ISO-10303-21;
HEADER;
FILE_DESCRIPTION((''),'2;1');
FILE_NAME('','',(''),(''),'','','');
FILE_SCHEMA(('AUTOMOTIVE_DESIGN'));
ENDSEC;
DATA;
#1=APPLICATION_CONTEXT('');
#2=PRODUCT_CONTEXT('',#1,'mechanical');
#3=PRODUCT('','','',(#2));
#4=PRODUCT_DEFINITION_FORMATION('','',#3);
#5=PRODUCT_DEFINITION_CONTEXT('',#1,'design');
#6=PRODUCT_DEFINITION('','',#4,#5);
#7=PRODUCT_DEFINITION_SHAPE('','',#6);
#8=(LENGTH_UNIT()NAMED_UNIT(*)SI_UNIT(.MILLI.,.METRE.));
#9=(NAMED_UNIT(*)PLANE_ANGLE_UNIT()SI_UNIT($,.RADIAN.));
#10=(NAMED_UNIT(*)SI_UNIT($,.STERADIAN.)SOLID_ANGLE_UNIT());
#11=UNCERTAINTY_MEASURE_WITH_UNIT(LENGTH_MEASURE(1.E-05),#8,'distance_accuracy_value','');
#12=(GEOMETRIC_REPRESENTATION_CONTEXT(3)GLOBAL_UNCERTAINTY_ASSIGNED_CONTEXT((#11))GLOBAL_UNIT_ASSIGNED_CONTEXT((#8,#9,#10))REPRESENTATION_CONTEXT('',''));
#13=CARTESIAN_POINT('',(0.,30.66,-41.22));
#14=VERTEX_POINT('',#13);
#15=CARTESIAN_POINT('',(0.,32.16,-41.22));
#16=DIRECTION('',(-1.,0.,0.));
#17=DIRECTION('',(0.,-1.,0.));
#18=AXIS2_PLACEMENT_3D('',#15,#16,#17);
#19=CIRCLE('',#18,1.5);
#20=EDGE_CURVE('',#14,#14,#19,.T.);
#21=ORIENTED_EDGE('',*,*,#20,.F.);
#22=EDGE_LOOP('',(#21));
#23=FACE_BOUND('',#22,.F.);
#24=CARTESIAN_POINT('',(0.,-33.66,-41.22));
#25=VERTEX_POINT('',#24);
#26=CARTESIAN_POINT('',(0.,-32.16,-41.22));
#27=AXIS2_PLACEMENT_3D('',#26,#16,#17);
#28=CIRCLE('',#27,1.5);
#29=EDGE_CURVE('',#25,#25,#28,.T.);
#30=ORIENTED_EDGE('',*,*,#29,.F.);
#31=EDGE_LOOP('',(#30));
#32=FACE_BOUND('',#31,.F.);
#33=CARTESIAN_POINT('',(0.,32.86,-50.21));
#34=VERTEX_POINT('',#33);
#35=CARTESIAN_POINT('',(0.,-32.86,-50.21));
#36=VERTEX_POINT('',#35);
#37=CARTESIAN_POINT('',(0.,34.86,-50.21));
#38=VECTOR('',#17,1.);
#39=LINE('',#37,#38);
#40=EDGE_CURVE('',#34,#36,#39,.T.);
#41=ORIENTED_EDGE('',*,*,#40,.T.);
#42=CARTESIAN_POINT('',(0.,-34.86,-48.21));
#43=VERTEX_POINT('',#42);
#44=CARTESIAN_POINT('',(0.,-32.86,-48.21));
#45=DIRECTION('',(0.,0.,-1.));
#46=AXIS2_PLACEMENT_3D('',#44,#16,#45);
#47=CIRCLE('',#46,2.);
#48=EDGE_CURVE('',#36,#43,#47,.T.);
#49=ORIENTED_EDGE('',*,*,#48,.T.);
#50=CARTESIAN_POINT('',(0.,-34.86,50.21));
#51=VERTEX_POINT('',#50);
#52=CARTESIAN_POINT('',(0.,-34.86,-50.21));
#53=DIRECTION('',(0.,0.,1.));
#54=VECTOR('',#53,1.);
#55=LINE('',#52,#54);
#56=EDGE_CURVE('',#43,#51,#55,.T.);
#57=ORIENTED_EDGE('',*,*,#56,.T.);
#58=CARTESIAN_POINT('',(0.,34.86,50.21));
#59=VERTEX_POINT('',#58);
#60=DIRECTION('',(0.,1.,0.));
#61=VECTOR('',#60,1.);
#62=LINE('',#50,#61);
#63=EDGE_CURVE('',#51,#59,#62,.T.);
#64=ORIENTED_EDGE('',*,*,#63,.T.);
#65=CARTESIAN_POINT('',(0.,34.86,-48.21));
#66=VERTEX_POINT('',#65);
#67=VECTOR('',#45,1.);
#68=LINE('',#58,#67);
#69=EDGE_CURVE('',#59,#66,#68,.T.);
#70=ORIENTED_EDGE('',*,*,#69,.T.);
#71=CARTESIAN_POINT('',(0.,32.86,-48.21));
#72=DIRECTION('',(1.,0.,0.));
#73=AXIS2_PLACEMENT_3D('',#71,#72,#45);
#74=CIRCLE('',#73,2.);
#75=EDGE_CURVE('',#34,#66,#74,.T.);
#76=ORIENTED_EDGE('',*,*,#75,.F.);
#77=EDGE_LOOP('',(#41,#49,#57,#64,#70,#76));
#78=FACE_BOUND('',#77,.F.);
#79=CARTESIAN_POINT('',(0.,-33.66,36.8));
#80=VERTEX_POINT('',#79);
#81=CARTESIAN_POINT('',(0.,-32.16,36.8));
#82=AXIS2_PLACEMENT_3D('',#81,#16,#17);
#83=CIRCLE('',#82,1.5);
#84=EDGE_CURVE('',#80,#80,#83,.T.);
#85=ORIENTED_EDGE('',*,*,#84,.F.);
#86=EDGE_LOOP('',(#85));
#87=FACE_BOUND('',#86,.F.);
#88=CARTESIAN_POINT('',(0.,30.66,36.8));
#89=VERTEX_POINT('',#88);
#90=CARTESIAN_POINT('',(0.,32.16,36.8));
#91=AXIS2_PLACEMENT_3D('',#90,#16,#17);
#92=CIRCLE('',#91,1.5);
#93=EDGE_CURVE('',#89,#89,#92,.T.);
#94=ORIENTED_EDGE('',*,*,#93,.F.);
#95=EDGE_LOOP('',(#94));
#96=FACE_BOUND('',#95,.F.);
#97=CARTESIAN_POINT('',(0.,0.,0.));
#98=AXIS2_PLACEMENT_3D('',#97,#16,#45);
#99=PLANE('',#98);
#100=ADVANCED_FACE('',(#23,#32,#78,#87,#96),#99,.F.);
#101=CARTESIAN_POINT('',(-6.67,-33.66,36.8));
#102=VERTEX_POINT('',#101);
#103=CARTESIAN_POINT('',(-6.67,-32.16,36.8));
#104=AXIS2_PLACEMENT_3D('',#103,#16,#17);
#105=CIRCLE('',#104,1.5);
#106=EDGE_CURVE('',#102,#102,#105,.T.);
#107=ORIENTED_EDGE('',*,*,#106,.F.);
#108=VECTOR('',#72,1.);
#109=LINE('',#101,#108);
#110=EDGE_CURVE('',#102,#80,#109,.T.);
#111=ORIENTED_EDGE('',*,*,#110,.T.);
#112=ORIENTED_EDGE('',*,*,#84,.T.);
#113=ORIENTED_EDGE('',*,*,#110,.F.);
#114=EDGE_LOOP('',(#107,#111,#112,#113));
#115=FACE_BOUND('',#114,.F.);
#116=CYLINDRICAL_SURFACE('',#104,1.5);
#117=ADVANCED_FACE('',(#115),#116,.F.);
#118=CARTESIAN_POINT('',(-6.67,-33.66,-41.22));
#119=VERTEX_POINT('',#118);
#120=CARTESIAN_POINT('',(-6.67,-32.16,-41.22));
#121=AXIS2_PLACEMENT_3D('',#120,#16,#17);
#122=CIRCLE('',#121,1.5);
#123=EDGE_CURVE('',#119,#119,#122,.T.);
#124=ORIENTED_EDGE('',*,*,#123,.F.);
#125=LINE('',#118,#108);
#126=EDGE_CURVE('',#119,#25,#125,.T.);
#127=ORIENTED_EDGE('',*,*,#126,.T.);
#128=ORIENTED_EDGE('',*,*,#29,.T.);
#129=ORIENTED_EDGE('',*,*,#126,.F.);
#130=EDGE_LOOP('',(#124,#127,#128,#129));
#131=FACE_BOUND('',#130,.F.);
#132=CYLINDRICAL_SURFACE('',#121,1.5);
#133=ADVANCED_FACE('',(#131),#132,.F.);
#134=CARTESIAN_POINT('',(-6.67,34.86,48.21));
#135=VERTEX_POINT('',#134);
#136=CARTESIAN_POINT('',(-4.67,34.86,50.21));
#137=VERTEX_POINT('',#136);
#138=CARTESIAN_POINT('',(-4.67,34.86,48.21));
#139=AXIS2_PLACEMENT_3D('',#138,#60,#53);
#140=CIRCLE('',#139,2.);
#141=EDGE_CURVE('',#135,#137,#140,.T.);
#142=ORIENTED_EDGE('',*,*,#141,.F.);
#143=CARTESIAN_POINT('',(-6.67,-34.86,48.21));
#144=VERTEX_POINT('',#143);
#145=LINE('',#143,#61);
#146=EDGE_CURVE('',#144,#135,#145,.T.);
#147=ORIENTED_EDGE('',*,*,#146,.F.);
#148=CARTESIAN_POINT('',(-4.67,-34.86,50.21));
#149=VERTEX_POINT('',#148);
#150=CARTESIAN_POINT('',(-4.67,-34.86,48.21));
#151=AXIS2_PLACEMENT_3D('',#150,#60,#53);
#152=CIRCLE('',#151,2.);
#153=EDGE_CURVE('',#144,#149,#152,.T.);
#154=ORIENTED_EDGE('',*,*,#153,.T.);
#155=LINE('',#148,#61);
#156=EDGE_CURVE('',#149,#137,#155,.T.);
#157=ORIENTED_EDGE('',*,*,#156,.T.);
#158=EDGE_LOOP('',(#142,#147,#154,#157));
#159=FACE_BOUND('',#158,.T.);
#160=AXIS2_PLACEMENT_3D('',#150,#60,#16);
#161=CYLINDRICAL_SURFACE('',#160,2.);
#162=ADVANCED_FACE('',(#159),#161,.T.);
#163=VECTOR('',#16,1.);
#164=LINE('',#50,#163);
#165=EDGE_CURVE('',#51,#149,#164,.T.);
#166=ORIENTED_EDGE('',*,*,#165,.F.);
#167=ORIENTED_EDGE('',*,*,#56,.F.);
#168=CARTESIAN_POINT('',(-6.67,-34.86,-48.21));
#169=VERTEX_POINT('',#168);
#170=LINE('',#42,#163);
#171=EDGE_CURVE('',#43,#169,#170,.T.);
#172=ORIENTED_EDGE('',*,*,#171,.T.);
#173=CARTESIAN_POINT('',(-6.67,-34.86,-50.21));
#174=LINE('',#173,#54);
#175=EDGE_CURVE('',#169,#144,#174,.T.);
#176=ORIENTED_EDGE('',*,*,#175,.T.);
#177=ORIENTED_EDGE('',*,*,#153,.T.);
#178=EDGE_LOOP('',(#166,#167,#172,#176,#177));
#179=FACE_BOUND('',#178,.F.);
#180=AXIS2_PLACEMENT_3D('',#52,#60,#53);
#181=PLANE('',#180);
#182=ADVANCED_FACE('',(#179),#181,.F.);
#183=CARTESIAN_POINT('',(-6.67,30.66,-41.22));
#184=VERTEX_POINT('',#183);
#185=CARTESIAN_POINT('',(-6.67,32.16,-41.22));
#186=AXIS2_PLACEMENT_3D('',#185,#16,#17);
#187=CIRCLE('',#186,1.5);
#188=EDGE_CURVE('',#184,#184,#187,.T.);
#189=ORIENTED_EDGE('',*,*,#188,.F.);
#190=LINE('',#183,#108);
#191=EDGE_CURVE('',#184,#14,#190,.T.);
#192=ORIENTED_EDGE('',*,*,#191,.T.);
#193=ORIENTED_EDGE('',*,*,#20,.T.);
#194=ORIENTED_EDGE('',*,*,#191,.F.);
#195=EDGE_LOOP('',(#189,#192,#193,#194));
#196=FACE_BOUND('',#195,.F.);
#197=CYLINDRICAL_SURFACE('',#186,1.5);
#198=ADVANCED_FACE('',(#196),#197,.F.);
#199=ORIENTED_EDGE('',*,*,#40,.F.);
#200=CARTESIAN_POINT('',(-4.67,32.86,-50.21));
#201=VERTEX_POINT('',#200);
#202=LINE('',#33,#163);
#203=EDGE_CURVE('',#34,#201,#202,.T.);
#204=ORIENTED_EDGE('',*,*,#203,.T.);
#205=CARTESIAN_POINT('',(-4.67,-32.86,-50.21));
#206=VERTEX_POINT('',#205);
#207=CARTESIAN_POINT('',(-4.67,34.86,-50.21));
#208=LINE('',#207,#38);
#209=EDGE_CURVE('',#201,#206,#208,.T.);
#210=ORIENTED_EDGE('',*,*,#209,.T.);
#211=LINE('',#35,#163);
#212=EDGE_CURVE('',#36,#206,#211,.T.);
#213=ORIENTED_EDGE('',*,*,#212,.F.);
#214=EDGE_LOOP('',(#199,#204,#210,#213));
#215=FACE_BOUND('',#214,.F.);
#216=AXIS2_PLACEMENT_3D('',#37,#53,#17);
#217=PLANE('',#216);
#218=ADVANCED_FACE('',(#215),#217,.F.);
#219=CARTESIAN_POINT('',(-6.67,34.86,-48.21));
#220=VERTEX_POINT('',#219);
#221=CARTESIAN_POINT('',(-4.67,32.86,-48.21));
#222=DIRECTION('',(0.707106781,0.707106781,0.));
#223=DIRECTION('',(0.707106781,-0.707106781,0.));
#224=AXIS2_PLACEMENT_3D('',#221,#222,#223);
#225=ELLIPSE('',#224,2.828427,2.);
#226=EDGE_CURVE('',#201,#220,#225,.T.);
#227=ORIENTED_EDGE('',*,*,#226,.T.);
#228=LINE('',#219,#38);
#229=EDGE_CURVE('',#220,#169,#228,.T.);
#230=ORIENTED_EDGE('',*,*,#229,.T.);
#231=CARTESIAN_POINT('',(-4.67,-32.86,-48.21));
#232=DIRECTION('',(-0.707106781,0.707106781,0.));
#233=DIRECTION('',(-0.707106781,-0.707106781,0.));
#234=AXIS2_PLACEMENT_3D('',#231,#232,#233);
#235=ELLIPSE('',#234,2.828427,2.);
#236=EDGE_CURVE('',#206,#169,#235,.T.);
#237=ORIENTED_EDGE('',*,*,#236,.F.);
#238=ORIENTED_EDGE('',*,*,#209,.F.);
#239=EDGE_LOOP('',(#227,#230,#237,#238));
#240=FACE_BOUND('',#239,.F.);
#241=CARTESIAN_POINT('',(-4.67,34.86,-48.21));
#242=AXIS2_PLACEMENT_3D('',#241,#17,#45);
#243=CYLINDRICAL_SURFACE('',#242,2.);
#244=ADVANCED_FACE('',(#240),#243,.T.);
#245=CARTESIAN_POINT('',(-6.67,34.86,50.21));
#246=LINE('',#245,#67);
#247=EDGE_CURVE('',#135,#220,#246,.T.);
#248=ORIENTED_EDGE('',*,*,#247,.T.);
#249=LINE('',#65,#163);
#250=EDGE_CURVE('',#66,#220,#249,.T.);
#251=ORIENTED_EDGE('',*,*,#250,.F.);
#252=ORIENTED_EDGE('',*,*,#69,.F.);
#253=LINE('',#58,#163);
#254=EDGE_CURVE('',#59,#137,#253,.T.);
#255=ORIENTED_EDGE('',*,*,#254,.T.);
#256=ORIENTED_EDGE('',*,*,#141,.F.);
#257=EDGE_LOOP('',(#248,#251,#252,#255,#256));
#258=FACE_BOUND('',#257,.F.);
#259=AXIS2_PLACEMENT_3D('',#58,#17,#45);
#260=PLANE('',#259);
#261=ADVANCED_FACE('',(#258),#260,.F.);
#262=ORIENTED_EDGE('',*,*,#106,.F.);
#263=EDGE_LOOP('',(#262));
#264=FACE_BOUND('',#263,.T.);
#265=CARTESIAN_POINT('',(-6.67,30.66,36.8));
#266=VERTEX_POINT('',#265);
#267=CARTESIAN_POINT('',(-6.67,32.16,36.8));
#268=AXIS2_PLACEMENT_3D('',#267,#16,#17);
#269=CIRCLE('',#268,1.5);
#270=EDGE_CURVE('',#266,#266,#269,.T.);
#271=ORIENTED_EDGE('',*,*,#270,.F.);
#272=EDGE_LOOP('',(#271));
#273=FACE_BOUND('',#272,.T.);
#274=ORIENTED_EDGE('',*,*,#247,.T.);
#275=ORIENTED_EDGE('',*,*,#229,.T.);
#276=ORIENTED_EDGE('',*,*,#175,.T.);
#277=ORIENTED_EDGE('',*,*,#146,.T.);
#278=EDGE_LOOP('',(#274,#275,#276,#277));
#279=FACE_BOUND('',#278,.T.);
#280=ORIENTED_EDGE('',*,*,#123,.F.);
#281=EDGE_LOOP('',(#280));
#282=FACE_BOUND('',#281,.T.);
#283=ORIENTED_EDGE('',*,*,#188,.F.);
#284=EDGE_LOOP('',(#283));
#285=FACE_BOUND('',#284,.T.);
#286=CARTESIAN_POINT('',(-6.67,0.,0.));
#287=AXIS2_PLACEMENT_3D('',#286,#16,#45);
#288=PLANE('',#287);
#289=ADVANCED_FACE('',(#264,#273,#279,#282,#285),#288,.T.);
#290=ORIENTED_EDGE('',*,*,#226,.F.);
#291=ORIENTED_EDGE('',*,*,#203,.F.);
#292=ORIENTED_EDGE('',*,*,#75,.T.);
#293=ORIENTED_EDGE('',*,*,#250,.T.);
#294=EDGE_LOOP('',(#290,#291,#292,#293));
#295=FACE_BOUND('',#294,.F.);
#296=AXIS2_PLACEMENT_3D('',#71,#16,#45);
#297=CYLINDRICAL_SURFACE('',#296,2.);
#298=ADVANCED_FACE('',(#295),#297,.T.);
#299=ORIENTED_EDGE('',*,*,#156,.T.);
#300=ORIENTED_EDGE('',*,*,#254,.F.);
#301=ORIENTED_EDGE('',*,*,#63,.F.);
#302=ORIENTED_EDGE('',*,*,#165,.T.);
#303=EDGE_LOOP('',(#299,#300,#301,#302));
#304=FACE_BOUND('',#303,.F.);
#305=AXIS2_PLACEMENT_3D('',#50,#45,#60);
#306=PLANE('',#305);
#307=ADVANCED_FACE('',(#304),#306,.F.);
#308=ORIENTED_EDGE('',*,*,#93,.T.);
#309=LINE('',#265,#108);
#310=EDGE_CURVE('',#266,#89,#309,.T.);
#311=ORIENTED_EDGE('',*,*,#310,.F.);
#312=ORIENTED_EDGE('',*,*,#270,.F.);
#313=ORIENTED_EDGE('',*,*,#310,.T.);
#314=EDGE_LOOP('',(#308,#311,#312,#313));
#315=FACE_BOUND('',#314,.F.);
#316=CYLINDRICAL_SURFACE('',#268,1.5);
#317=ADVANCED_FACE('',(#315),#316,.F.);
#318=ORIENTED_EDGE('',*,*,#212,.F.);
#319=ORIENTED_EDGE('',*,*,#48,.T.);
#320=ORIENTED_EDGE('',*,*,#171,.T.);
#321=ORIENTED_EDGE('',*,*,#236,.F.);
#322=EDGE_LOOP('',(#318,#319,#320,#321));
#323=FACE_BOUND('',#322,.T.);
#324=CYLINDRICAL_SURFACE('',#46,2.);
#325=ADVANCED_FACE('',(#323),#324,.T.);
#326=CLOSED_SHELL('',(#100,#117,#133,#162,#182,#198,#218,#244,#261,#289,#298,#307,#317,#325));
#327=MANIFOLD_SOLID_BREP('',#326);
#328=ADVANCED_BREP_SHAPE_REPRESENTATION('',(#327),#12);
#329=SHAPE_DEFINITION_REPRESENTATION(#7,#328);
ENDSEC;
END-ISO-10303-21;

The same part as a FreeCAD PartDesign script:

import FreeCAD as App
import Part
import Sketcher

V = App.Vector


def edges_at(feature, points):
    """Names of the edges that pass closest to the given points."""
    edges = feature.Shape.Edges
    near = lambda p: min(range(len(edges)), key=lambda i: edges[i].distToShape(Part.Vertex(*p))[0])
    return sorted({f"Edge{near(p) + 1}" for p in points})


def add_polygon(sketch, points):
    """Adds a closed chain of lines whose ends are joined by coincident constraints."""
    first, n = sketch.GeometryCount, len(points)
    for a, b in zip(points, points[1:] + points[:1]):
        sketch.addGeometry(Part.LineSegment(App.Vector(*a, 0), App.Vector(*b, 0)), False)
    for i in range(n):
        sketch.addConstraint(Sketcher.Constraint("Coincident", first + i, 2, first + (i + 1) % n, 1))

doc = App.newDocument("Part")
body = doc.addObject("PartDesign::Body", "Body")

sketch1 = body.newObject("Sketcher::SketchObject", "Sketch")
sketch1.AttachmentSupport = (doc.getObject("YZ_Plane"), [""])
sketch1.MapMode = "FlatFace"
add_polygon(sketch1, [(34.86, 50.21), (34.86, -50.21), (-34.86, -50.21), (-34.86, 50.21)])
sketch1.addConstraint([
    Sketcher.Constraint("Vertical", 0),
    Sketcher.Constraint("Horizontal", 1),
    Sketcher.Constraint("Vertical", 2),
    Sketcher.Constraint("Horizontal", 3),
    Sketcher.Constraint("Symmetric", 0, 2, 2, 2, -1, 1),
    Sketcher.Constraint("DistanceX", 1, 2, 1, 1, 69.72),
    Sketcher.Constraint("DistanceY", 0, 2, 0, 1, 100.42),
])
pad1 = body.newObject("PartDesign::Pad", "Pad")
pad1.Profile = sketch1
pad1.Length = 6.67
pad1.Reversed = True

sketch2 = body.newObject("Sketcher::SketchObject", "Sketch001")
sketch2.AttachmentSupport = (doc.getObject("YZ_Plane"), [""])
sketch2.MapMode = "FlatFace"
sketch2.AttachmentOffset = App.Placement(V(0, 0, -6.67), App.Rotation())
sketch2.addGeometry([
    Part.Circle(V(32.16, 36.8, 0), V(0, 0, 1), 1.5),
    Part.Circle(V(-32.16, 36.8, 0), V(0, 0, 1), 1.5),
    Part.Circle(V(32.16, -41.22, 0), V(0, 0, 1), 1.5),
    Part.Circle(V(-32.16, -41.22, 0), V(0, 0, 1), 1.5),
], False)
sketch2.addConstraint([
    Sketcher.Constraint("Equal", 0, 1),
    Sketcher.Constraint("Equal", 1, 2),
    Sketcher.Constraint("Equal", 2, 3),
    Sketcher.Constraint("Symmetric", 0, 3, 1, 3, -2),
    Sketcher.Constraint("Symmetric", 2, 3, 3, 3, -2),
    Sketcher.Constraint("Vertical", 0, 3, 2, 3),
    Sketcher.Constraint("Diameter", 0, 3.0),
    Sketcher.Constraint("DistanceY", -1, 1, 0, 3, 36.8),
    Sketcher.Constraint("DistanceX", -1, 1, 0, 3, 32.16),
    Sketcher.Constraint("DistanceY", 2, 3, -1, 1, 41.22),
])
pocket1 = body.newObject("PartDesign::Pocket", "Pocket")
pocket1.Profile = sketch2
pocket1.Length = 15
pocket1.Reversed = True
doc.recompute()

fillet = body.newObject("PartDesign::Fillet", "Fillet")
fillet.Base = (pocket1, edges_at(pocket1, [
    (-6.67, 0, 50.21),
    (-6.67, 0, -50.21),
    (-3.335, 34.86, -50.21),
    (-3.335, -34.86, -50.21),
]))
fillet.Radius = 2

doc.recompute()
